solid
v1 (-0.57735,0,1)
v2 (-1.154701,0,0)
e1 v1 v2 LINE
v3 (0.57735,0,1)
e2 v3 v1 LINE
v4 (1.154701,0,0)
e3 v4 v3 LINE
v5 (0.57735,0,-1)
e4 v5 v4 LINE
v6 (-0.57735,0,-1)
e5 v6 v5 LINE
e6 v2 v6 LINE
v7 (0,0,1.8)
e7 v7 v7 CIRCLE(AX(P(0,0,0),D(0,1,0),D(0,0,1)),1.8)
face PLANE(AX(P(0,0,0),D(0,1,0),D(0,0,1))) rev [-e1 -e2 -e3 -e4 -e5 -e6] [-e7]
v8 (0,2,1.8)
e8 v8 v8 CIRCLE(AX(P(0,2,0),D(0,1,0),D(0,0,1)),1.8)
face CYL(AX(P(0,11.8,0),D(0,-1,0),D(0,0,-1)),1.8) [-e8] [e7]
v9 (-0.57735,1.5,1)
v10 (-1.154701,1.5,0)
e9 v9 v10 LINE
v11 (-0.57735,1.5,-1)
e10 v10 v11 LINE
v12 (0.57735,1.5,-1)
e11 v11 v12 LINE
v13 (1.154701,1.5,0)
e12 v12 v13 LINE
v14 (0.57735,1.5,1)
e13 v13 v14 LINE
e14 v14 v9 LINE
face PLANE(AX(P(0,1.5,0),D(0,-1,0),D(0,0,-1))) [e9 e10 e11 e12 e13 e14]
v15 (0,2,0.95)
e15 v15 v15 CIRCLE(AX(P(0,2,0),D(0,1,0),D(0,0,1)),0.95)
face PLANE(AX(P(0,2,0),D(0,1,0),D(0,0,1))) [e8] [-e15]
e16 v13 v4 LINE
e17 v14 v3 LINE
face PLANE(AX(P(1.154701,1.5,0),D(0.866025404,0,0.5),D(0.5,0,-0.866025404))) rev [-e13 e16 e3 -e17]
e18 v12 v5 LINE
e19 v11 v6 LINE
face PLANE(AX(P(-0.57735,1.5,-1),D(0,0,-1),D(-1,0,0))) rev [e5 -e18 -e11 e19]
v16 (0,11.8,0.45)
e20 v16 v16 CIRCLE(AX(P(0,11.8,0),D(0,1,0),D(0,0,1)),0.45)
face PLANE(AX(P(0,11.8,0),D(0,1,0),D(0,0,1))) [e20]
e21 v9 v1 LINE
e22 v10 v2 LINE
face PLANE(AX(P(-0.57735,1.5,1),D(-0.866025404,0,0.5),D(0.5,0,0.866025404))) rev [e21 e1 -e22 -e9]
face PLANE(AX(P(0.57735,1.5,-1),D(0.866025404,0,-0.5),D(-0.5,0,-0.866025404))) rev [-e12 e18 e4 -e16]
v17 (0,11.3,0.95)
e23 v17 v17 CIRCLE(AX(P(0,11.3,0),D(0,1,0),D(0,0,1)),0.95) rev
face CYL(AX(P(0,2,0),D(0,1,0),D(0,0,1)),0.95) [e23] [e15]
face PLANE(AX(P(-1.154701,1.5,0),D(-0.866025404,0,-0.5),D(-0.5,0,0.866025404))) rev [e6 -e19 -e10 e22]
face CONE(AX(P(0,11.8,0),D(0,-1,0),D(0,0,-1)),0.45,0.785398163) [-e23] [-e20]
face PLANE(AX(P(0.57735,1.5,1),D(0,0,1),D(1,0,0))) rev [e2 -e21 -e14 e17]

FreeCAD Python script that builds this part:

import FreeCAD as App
import Part
import Sketcher

V = App.Vector
Q = App.Units.Quantity


def edges_at(feature, points):
    """Names of the edges that pass closest to the given points."""
    edges = feature.Shape.Edges
    near = lambda p: min(range(len(edges)), key=lambda i: edges[i].distToShape(Part.Vertex(*p))[0])
    return sorted({f"Edge{near(p) + 1}" for p in points})


def add_polygon(sketch, points):
    """Adds a closed chain of lines whose ends are joined by coincident constraints."""
    first, n = sketch.GeometryCount, len(points)
    for a, b in zip(points, points[1:] + points[:1]):
        sketch.addGeometry(Part.LineSegment(App.Vector(*a, 0), App.Vector(*b, 0)), False)
    for i in range(n):
        sketch.addConstraint(Sketcher.Constraint("Coincident", first + i, 2, first + (i + 1) % n, 1))

doc = App.newDocument("Part")
params = doc.addObject("Spreadsheet::Sheet", "Params")
for row, (alias, value) in enumerate([
    ("sketch1_diameter", "3.6 mm"),
    ("pad1_length", "11.8 mm"),
    ("sketch2_diameter", "1.9 mm"),
    ("sketch2_width", "8.17 mm"),
    ("pocket1_length", "9.8 mm"),
    ("chamfer_size", "0.5 mm"),
    ("pocket2_length", "1.5 mm"),
], start=1):
    params.set(f"A{row}", alias)
    params.set(f"B{row}", "=" + value)
    params.setAlias(f"B{row}", alias)

body = doc.addObject("PartDesign::Body", "Body")

sketch1 = doc.addObject("Sketcher::SketchObject", "Sketch")
body.addObject(sketch1)
sketch1.AttachmentSupport = (doc.XZ_Plane, [""])
sketch1.MapMode = "FlatFace"
sketch1.addGeometry(Part.Circle(V(0, 0, 0), V(0, 0, 1), 1.8), False)
sketch1.addConstraint([
    Sketcher.Constraint("Coincident", 0, 3, -1, 1),
    Sketcher.Constraint("Diameter", 0, Q("3.6 mm")),
])
sketch1.setExpression("Constraints[1]", "Params.sketch1_diameter")
pad1 = doc.addObject("PartDesign::Pad", "Pad")
body.addObject(pad1)
pad1.Profile = sketch1
pad1.setExpression("Length", "Params.pad1_length")
pad1.Reversed = True

sketch2 = doc.addObject("Sketcher::SketchObject", "Sketch001")
body.addObject(sketch2)
sketch2.AttachmentSupport = (doc.XZ_Plane, [""])
sketch2.MapMode = "FlatFace"
sketch2.AttachmentOffset = App.Placement(V(0, 0, -11.8), App.Rotation())
add_polygon(sketch2, [(-4.1, -4.1), (-4.1, 4.1), (4.1, 4.1), (4.1, -4.1)])
sketch2.addGeometry(Part.Circle(V(0, 0, 0), V(0, 0, 1), 0.9), False)
sketch2.addConstraint([
    Sketcher.Constraint("Vertical", 0),
    Sketcher.Constraint("Horizontal", 1),
    Sketcher.Constraint("Vertical", 2),
    Sketcher.Constraint("Horizontal", 3),
    Sketcher.Constraint("Coincident", 4, 3, -1, 1),
    Sketcher.Constraint("Symmetric", 0, 2, 2, 2, -1, 1),
    Sketcher.Constraint("Equal", 3, 0),
    Sketcher.Constraint("Diameter", 4, Q("1.9 mm")),
    Sketcher.Constraint("DistanceX", 1, 1, 1, 2, Q("8.17 mm")),
])
sketch2.setExpression("Constraints[11]", "Params.sketch2_diameter")
sketch2.setExpression("Constraints[12]", "Params.sketch2_width")
pocket1 = doc.addObject("PartDesign::Pocket", "Pocket")
body.addObject(pocket1)
pocket1.Profile = sketch2
pocket1.setExpression("Length", "Params.pocket1_length")
pocket1.Reversed = True
doc.recompute()

chamfer = doc.addObject("PartDesign::Chamfer", "Chamfer")
body.addObject(chamfer)
chamfer.Base = (pocket1, edges_at(pocket1, [(0, 11.8, -0.95)]))
chamfer.setExpression("Size", "Params.chamfer_size")

sketch3 = doc.addObject("Sketcher::SketchObject", "Sketch002")
body.addObject(sketch3)
sketch3.AttachmentSupport = (doc.XZ_Plane, [""])
sketch3.MapMode = "FlatFace"
add_polygon(sketch3, [(1.2, 0), (0.6, 1), (-0.6, 1), (-1.2, 0), (-0.6, -1), (0.6, -1)])
sketch3.addConstraint([
    Sketcher.Constraint("Horizontal", 1),
    Sketcher.Constraint("Horizontal", 4),
    Sketcher.Constraint("Symmetric", 0, 2, 3, 2, -1, 1),
    Sketcher.Constraint("Symmetric", 2, 2, 5, 2, -1, 1),
    Sketcher.Constraint("PointOnObject", 2, 2, -1),
    Sketcher.Constraint("Parallel", 2, 5),
    Sketcher.Constraint("Vertical", 1, 2, 3, 2),
    Sketcher.Constraint("Angle", 0, Q("120 deg")),
    Sketcher.Constraint("DistanceY", -1, 1, 0, 2, Q("1 mm")),
    Sketcher.Constraint("DistanceX", 1, 2, 1, 1, Q("1.154701 mm")),
])
pocket2 = doc.addObject("PartDesign::Pocket", "Pocket001")
body.addObject(pocket2)
pocket2.Profile = sketch3
pocket2.setExpression("Length", "Params.pocket2_length")

doc.recompute()
